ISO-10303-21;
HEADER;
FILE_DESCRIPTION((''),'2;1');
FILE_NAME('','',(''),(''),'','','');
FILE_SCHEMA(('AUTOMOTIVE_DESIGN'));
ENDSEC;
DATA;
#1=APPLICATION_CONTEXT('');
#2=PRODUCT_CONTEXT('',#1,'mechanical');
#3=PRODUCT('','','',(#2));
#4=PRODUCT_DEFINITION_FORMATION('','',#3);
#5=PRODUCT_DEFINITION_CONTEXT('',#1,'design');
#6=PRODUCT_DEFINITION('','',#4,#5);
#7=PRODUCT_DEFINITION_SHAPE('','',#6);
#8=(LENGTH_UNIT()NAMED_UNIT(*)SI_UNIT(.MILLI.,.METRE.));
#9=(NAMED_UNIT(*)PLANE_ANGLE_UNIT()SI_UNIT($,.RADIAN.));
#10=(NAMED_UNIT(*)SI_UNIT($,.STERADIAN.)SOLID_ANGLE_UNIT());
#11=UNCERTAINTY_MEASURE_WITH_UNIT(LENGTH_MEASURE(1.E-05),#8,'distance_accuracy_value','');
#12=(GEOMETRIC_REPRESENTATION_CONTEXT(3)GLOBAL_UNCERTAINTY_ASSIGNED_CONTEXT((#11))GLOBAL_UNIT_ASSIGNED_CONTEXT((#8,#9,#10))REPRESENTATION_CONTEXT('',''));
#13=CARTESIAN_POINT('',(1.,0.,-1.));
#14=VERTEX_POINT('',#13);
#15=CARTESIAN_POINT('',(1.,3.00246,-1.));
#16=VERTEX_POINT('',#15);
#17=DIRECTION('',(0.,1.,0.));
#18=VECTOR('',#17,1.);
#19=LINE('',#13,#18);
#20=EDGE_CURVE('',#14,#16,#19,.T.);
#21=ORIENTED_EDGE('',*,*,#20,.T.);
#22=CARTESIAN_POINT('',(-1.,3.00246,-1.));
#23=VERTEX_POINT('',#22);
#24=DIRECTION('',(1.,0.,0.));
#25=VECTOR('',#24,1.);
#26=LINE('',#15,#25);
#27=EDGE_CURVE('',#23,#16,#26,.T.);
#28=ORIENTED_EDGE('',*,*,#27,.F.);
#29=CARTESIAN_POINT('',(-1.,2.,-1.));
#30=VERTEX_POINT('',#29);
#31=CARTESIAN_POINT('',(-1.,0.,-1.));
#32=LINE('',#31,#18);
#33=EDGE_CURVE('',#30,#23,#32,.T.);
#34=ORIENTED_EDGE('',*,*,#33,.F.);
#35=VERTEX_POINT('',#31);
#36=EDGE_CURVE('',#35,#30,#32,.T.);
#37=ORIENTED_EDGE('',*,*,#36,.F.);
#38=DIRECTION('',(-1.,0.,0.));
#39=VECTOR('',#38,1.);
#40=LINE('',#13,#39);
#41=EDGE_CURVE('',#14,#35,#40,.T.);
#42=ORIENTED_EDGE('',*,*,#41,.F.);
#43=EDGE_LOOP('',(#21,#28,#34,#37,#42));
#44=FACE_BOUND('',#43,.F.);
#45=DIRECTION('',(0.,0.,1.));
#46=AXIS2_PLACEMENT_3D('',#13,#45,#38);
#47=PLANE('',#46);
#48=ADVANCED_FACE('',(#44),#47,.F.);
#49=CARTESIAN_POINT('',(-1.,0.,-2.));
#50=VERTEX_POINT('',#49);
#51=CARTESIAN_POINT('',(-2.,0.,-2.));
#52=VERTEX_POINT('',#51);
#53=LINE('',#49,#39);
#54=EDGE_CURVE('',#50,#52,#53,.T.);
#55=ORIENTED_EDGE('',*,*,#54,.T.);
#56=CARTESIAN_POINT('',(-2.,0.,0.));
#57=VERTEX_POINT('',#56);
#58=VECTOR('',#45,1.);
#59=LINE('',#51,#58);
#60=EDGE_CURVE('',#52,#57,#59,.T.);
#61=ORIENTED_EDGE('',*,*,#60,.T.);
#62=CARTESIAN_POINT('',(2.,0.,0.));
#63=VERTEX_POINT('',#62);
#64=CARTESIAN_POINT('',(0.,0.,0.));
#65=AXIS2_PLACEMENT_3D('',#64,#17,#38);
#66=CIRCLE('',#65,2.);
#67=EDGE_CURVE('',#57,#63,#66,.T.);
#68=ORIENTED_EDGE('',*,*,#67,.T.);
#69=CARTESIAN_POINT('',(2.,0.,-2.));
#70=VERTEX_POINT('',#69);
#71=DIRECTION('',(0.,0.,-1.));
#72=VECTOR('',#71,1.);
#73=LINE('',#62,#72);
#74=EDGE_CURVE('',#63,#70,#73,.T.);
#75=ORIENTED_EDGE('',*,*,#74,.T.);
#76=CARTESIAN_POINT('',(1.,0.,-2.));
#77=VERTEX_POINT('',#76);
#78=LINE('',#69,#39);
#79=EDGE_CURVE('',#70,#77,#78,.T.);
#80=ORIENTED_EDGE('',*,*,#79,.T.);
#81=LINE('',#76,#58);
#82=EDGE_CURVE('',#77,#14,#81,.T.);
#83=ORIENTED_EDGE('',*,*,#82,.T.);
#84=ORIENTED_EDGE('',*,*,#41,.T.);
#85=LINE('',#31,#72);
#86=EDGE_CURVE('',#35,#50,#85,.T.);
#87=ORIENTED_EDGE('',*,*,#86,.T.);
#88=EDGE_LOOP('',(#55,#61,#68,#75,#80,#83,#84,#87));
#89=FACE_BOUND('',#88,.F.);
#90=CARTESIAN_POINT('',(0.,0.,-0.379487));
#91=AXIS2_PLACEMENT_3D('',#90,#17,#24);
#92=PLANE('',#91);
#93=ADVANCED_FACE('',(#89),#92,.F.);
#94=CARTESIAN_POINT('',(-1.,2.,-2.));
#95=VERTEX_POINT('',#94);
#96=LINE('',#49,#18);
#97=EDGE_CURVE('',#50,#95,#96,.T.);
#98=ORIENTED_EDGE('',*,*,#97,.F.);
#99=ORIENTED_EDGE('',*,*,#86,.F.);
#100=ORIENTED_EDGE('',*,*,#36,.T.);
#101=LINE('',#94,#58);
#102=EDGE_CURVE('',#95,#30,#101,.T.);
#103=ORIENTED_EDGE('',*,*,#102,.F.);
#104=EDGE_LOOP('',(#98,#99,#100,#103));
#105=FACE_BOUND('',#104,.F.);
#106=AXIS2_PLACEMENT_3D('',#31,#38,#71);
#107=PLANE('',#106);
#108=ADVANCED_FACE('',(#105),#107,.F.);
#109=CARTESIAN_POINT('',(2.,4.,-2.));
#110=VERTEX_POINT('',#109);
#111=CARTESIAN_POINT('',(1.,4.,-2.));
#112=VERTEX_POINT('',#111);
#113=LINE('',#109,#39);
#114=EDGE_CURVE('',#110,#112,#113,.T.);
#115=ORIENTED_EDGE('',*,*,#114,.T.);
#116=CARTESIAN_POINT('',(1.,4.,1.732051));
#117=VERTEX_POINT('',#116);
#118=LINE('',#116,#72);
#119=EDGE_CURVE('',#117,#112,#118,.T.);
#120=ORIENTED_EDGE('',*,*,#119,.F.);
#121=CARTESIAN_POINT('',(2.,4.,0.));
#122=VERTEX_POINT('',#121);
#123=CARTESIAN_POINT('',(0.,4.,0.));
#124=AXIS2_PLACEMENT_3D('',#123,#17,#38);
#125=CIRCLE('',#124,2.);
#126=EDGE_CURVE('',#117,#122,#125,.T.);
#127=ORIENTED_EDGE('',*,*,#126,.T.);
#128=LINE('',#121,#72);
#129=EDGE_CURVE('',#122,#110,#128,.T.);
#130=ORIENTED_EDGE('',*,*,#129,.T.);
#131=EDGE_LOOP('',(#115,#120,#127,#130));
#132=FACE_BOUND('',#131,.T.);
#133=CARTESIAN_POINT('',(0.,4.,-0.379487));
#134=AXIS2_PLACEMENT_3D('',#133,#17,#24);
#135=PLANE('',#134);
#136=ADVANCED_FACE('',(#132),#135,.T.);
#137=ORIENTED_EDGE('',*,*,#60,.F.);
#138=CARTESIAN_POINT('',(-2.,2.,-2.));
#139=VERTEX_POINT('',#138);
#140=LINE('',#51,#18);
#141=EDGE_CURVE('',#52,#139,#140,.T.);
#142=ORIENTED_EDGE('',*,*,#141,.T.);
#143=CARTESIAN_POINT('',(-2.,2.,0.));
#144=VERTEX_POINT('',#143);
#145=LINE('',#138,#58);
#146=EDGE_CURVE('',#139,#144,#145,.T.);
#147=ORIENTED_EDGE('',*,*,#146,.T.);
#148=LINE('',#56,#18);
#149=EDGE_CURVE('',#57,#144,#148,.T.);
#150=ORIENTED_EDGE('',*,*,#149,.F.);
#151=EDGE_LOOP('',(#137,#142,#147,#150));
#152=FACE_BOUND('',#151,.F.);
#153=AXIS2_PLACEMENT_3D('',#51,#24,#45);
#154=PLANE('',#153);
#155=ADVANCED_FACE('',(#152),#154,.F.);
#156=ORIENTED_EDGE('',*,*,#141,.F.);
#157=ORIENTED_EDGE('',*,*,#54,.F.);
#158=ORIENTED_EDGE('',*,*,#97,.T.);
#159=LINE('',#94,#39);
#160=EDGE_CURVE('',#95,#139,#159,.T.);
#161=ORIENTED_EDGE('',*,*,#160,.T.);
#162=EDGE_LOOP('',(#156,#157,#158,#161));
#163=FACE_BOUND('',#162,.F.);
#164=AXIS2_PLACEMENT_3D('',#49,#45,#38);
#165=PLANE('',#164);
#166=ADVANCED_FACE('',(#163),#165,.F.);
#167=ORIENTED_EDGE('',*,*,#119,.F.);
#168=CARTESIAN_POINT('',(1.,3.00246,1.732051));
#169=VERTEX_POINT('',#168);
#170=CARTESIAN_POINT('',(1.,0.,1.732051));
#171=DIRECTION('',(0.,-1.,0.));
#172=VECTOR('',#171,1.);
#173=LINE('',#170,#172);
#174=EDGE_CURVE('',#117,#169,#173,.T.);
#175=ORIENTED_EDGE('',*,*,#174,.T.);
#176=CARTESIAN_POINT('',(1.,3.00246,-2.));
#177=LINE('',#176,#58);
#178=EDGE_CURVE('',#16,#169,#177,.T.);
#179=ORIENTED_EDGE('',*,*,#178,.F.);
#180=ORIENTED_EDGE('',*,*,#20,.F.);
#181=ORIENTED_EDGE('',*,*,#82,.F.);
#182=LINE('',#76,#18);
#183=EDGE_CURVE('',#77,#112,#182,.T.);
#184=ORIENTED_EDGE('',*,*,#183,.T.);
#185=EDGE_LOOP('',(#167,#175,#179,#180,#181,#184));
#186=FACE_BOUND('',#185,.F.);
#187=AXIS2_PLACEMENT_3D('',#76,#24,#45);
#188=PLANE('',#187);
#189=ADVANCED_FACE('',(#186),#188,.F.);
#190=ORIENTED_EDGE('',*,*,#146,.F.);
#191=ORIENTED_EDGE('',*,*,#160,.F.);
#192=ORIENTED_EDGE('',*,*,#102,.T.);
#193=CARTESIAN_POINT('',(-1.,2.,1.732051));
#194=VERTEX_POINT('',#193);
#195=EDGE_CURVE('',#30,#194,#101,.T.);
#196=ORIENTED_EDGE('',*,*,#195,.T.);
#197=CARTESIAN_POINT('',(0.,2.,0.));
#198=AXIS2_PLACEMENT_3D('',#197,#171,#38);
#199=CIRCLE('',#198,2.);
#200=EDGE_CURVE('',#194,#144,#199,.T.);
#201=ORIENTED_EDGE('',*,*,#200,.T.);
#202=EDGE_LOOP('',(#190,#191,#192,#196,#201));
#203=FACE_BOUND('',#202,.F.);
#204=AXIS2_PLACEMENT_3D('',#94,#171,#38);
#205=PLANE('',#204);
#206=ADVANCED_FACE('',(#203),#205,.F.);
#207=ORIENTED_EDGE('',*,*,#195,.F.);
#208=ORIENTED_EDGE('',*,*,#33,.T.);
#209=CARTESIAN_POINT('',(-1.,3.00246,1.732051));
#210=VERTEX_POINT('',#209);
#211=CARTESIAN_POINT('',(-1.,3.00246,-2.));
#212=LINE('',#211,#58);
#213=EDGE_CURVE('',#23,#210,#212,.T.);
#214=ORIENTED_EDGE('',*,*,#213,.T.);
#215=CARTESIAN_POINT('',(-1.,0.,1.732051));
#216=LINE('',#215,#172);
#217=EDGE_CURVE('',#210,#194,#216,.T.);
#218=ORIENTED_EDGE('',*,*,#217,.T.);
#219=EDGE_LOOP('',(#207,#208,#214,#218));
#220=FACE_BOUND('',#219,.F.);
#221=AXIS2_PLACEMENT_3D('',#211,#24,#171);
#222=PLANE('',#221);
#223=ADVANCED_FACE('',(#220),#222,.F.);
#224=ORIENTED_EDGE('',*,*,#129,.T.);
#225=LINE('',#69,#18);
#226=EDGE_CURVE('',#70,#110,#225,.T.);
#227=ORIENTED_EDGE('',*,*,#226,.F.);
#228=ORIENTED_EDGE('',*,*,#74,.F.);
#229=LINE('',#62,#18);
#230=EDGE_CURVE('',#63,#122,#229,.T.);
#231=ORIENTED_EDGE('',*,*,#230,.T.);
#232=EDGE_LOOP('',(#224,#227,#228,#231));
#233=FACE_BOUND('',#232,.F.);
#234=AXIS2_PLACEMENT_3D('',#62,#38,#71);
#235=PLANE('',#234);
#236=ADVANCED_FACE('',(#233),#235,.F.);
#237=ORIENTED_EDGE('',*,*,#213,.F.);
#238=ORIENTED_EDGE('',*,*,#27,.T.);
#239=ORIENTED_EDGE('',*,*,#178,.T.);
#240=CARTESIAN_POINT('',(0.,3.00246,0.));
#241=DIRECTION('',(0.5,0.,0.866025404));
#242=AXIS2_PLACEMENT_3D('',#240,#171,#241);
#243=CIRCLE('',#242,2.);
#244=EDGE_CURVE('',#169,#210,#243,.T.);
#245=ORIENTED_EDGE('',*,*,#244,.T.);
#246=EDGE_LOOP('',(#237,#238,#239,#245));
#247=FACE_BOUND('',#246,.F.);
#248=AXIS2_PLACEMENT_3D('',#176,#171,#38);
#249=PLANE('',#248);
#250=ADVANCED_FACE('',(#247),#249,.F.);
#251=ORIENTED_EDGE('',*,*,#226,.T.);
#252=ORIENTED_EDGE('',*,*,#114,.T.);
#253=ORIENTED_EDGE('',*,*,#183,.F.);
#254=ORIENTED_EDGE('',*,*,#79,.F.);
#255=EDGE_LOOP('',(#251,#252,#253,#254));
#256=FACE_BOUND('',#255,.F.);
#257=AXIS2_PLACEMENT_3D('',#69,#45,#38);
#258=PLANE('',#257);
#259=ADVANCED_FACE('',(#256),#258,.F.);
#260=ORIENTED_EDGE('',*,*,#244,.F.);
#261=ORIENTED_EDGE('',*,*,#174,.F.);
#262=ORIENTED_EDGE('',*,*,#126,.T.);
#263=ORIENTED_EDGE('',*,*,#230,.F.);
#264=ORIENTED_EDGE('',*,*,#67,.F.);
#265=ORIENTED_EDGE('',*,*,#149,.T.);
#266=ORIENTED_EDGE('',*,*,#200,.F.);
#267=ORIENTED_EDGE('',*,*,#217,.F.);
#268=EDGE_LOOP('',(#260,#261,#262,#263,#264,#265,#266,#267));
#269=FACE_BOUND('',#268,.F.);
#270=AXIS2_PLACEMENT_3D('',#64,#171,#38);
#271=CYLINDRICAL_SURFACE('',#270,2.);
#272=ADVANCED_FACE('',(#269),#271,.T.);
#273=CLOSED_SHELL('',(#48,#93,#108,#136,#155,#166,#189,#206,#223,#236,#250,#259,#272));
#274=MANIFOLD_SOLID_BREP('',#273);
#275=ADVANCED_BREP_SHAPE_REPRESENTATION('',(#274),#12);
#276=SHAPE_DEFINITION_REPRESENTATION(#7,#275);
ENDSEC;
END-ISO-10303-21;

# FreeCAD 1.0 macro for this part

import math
import FreeCAD as App
import Part
import Sketcher
Q = App.Units.Quantity


def add_polygon(sketch, points):
    """Adds a closed chain of lines whose ends are joined by coincident constraints."""
    first, n = sketch.GeometryCount, len(points)
    for a, b in zip(points, points[1:] + points[:1]):
        sketch.addGeometry(Part.LineSegment(App.Vector(*a, 0), App.Vector(*b, 0)), False)
    for i in range(n):
        sketch.addConstraint(Sketcher.Constraint("Coincident", first + i, 2, first + (i + 1) % n, 1))

doc = App.newDocument("Part")
body = doc.addObject("PartDesign::Body", "Body")

# Sketch on XZ plane
sketch1 = body.newObject("Sketcher::SketchObject", "Sketch")
sketch1.AttachmentSupport = (doc.getObject("XZ_Plane"), [""])
sketch1.MapMode = "FlatFace"
sketch1.addGeometry(Part.LineSegment(App.Vector(-2, -2, 0), App.Vector(-2, 0, 0)), False)
sketch1.addGeometry(Part.ArcOfCircle(Part.Circle(App.Vector(0, 0, 0), App.Vector(0, 0, 1), 2), math.radians(0), math.radians(180)), False)
sketch1.addGeometry(Part.LineSegment(App.Vector(2, 0, 0), App.Vector(2, -2, 0)), False)
sketch1.addGeometry(Part.LineSegment(App.Vector(2, -2, 0), App.Vector(1, -2, 0)), False)
sketch1.addGeometry(Part.LineSegment(App.Vector(1, -2, 0), App.Vector(1, -1, 0)), False)
sketch1.addGeometry(Part.LineSegment(App.Vector(1, -1, 0), App.Vector(-1, -1, 0)), False)
sketch1.addGeometry(Part.LineSegment(App.Vector(-1, -1, 0), App.Vector(-1, -2, 0)), False)
sketch1.addGeometry(Part.LineSegment(App.Vector(-1, -2, 0), App.Vector(-2, -2, 0)), False)
sketch1.addConstraint(Sketcher.Constraint("Tangent", 0, 2, 1, 2))
sketch1.addConstraint(Sketcher.Constraint("Tangent", 1, 1, 2, 1))
sketch1.addConstraint(Sketcher.Constraint("Coincident", 2, 2, 3, 1))
sketch1.addConstraint(Sketcher.Constraint("Coincident", 3, 2, 4, 1))
sketch1.addConstraint(Sketcher.Constraint("Coincident", 4, 2, 5, 1))
sketch1.addConstraint(Sketcher.Constraint("Coincident", 5, 2, 6, 1))
sketch1.addConstraint(Sketcher.Constraint("Coincident", 6, 2, 7, 1))
sketch1.addConstraint(Sketcher.Constraint("Coincident", 7, 2, 0, 1))
sketch1.addConstraint(Sketcher.Constraint("Vertical", 0))
sketch1.addConstraint(Sketcher.Constraint("Vertical", 2))
sketch1.addConstraint(Sketcher.Constraint("Horizontal", 3))
sketch1.addConstraint(Sketcher.Constraint("Vertical", 4))
sketch1.addConstraint(Sketcher.Constraint("Horizontal", 5))
sketch1.addConstraint(Sketcher.Constraint("Vertical", 6))
sketch1.addConstraint(Sketcher.Constraint("Horizontal", 7))
sketch1.addConstraint(Sketcher.Constraint("Coincident", 1, 3, -1, 1))
sketch1.addConstraint(Sketcher.Constraint("Symmetric", 3, 2, 6, 2, -2))
sketch1.addConstraint(Sketcher.Constraint("Equal", 5, 0))
sketch1.addConstraint(Sketcher.Constraint("Equal", 7, 4))
sketch1.addConstraint(Sketcher.Constraint("Radius", 1, Q("2 mm")))
sketch1.addConstraint(Sketcher.Constraint("DistanceX", 3, 2, 3, 1, Q("1 mm")))
pad1 = body.newObject("PartDesign::Pad", "Pad")
pad1.Profile = sketch1
pad1.Length = 4
pad1.Reversed = True

# Sketch on XY plane
sketch2 = body.newObject("Sketcher::SketchObject", "Sketch001")
sketch2.AttachmentSupport = (doc.getObject("XY_Plane"), [""])
sketch2.MapMode = "FlatFace"
sketch2.AttachmentOffset = App.Placement(App.Vector(0, 0, -2), App.Rotation())
add_polygon(sketch2, [(1, 4), (1, 3), (-1, 3), (-1, 2), (-2, 2), (-2, 4)])  # lines 0-5
sketch2.addConstraint(Sketcher.Constraint("Vertical", 0))
sketch2.addConstraint(Sketcher.Constraint("Horizontal", 1))
sketch2.addConstraint(Sketcher.Constraint("Vertical", 2))
sketch2.addConstraint(Sketcher.Constraint("Horizontal", 3))
sketch2.addConstraint(Sketcher.Constraint("Vertical", 4))
sketch2.addConstraint(Sketcher.Constraint("Horizontal", 5))
sketch2.addConstraint(Sketcher.Constraint("Equal", 1, 4))
sketch2.addConstraint(Sketcher.Constraint("DistanceX", 1, 2, 1, 1, Q("2 mm")))
sketch2.addConstraint(Sketcher.Constraint("DistanceX", 3, 2, 3, 1, Q("1 mm")))
sketch2.addConstraint(Sketcher.Constraint("DistanceX", -1, 1, 0, 2, Q("1 mm")))
sketch2.addConstraint(Sketcher.Constraint("DistanceY", -1, 1, 2, 2, Q("2 mm")))
sketch2.addConstraint(Sketcher.Constraint("DistanceY", 0, 2, 0, 1, Q("0.99754 mm")))
pocket1 = body.newObject("PartDesign::Pocket", "Pocket")
pocket1.Profile = sketch2
pocket1.Length = 4
pocket1.Reversed = True

doc.recompute()
